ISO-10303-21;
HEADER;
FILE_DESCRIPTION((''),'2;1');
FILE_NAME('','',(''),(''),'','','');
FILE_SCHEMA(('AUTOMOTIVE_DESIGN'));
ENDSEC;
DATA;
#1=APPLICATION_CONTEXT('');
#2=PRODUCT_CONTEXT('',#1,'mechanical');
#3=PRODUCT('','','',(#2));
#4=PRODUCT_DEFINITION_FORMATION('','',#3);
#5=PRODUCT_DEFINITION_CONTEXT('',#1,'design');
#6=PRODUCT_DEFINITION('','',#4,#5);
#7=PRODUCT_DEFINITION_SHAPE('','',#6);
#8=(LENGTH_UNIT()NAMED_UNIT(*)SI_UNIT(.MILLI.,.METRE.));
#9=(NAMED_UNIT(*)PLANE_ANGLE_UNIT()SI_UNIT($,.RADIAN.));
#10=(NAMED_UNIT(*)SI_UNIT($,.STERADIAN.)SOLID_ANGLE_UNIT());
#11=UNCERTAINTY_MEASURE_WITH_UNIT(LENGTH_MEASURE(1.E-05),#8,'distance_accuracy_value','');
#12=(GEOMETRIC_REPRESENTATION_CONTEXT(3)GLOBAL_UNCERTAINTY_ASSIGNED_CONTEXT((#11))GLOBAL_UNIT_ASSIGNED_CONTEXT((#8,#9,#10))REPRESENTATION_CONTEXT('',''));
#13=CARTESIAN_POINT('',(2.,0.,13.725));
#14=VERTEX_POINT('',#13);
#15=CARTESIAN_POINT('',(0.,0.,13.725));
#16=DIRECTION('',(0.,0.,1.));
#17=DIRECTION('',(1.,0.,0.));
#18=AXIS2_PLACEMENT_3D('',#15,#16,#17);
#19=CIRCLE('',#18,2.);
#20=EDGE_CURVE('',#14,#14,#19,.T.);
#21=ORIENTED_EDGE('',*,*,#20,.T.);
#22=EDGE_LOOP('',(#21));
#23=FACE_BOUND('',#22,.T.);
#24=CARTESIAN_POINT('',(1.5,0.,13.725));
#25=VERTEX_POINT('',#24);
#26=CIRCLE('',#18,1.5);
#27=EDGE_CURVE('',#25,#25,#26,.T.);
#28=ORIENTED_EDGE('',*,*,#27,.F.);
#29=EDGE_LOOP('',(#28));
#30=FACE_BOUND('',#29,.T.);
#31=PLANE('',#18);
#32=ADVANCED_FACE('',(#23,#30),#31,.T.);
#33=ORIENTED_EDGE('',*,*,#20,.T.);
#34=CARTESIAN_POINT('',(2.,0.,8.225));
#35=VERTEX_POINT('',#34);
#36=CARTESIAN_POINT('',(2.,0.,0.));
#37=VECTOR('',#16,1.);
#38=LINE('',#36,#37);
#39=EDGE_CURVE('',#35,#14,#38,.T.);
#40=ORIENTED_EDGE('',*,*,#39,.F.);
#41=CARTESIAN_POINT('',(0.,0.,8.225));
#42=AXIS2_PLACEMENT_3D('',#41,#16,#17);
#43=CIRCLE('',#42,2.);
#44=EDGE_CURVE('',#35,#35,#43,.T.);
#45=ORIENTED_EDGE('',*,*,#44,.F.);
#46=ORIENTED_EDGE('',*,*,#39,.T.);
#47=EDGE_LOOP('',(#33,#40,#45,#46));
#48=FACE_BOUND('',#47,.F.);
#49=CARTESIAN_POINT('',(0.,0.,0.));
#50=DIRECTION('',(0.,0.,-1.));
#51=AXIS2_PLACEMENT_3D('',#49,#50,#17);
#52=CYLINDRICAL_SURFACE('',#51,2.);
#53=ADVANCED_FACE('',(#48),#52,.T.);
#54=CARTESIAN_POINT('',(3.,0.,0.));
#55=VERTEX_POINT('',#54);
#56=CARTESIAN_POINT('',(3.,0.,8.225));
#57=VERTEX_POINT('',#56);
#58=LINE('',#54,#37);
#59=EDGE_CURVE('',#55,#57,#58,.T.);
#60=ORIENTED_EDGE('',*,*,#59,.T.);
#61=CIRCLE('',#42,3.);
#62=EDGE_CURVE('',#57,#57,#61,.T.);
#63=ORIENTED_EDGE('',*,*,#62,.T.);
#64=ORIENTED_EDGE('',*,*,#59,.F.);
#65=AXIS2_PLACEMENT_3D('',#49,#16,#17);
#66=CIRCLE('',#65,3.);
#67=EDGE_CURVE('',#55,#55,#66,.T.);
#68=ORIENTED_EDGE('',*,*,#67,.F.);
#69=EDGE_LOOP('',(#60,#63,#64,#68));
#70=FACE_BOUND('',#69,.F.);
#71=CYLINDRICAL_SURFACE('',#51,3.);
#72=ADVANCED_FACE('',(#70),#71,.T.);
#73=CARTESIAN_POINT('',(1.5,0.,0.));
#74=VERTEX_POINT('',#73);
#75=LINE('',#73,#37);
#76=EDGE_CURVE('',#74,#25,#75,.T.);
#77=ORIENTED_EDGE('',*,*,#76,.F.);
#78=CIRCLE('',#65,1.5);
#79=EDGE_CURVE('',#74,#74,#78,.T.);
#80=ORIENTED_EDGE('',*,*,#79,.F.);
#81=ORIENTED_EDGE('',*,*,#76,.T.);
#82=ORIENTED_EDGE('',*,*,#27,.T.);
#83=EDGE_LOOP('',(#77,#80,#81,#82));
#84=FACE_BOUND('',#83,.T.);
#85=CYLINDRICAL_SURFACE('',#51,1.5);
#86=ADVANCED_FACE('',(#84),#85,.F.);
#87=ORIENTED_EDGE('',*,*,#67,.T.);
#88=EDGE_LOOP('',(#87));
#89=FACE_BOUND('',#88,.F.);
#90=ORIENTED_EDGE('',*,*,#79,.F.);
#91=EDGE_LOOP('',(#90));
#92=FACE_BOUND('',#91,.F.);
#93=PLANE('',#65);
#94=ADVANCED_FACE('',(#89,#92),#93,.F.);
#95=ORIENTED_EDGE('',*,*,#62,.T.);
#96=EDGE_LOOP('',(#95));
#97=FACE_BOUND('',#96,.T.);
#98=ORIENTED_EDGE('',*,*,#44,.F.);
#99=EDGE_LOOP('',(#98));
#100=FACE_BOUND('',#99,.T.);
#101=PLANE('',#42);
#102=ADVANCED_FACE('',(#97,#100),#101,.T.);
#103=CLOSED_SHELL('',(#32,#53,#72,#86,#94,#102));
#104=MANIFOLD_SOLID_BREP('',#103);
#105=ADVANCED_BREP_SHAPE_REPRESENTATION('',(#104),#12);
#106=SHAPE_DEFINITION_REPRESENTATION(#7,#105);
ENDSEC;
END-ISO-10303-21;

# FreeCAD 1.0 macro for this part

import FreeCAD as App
import Part
import Sketcher

V = App.Vector
Q = App.Units.Quantity

doc = App.newDocument("Part")
params = doc.addObject("Spreadsheet::Sheet", "Params")
for row, (alias, value) in enumerate([
    ("sketch1_diameter", "6 mm"),
    ("sketch1_diameter2", "4 mm"),
    ("pad1_length", "8.225 mm"),
    ("sketch2_diameter", "4 mm"),
    ("sketch2_diameter2", "3 mm"),
    ("pad2_length", "13.725 mm"),
], start=1):
    params.set(f"A{row}", alias)
    params.set(f"B{row}", "=" + value)
    params.setAlias(f"B{row}", alias)

body = doc.addObject("PartDesign::Body", "Body")

sketch1 = body.newObject("Sketcher::SketchObject", "Sketch")
sketch1.AttachmentSupport = (doc.getObject("XY_Plane"), [""])
sketch1.MapMode = "FlatFace"
sketch1.addGeometry([
    Part.Circle(V(0, 0, 0), V(0, 0, 1), 3),
    Part.Circle(V(0, 0, 0), V(0, 0, 1), 2),
], False)
sketch1.addConstraint([
    Sketcher.Constraint("Coincident", 0, 3, -1, 1),
    Sketcher.Constraint("Coincident", 1, 3, -1, 1),
    Sketcher.Constraint("Diameter", 0, Q("6 mm")),
    Sketcher.Constraint("Diameter", 1, Q("4 mm")),
])
sketch1.setExpression("Constraints[2]", "Params.sketch1_diameter")
sketch1.setExpression("Constraints[3]", "Params.sketch1_diameter2")
pad1 = body.newObject("PartDesign::Pad", "Pad")
pad1.Profile = sketch1
pad1.setExpression("Length", "Params.pad1_length")

sketch2 = body.newObject("Sketcher::SketchObject", "Sketch001")
sketch2.AttachmentSupport = (doc.getObject("XY_Plane"), [""])
sketch2.MapMode = "FlatFace"
sketch2.addGeometry([
    Part.Circle(V(0, 0, 0), V(0, 0, 1), 2),
    Part.Circle(V(0, 0, 0), V(0, 0, 1), 1.5),
], False)
sketch2.addConstraint([
    Sketcher.Constraint("Coincident", 0, 3, -1, 1),
    Sketcher.Constraint("Coincident", 1, 3, -1, 1),
    Sketcher.Constraint("Diameter", 0, Q("4 mm")),
    Sketcher.Constraint("Diameter", 1, Q("3 mm")),
])
sketch2.setExpression("Constraints[2]", "Params.sketch2_diameter")
sketch2.setExpression("Constraints[3]", "Params.sketch2_diameter2")
pad2 = body.newObject("PartDesign::Pad", "Pad001")
pad2.Profile = sketch2
pad2.setExpression("Length", "Params.pad2_length")

doc.recompute()
